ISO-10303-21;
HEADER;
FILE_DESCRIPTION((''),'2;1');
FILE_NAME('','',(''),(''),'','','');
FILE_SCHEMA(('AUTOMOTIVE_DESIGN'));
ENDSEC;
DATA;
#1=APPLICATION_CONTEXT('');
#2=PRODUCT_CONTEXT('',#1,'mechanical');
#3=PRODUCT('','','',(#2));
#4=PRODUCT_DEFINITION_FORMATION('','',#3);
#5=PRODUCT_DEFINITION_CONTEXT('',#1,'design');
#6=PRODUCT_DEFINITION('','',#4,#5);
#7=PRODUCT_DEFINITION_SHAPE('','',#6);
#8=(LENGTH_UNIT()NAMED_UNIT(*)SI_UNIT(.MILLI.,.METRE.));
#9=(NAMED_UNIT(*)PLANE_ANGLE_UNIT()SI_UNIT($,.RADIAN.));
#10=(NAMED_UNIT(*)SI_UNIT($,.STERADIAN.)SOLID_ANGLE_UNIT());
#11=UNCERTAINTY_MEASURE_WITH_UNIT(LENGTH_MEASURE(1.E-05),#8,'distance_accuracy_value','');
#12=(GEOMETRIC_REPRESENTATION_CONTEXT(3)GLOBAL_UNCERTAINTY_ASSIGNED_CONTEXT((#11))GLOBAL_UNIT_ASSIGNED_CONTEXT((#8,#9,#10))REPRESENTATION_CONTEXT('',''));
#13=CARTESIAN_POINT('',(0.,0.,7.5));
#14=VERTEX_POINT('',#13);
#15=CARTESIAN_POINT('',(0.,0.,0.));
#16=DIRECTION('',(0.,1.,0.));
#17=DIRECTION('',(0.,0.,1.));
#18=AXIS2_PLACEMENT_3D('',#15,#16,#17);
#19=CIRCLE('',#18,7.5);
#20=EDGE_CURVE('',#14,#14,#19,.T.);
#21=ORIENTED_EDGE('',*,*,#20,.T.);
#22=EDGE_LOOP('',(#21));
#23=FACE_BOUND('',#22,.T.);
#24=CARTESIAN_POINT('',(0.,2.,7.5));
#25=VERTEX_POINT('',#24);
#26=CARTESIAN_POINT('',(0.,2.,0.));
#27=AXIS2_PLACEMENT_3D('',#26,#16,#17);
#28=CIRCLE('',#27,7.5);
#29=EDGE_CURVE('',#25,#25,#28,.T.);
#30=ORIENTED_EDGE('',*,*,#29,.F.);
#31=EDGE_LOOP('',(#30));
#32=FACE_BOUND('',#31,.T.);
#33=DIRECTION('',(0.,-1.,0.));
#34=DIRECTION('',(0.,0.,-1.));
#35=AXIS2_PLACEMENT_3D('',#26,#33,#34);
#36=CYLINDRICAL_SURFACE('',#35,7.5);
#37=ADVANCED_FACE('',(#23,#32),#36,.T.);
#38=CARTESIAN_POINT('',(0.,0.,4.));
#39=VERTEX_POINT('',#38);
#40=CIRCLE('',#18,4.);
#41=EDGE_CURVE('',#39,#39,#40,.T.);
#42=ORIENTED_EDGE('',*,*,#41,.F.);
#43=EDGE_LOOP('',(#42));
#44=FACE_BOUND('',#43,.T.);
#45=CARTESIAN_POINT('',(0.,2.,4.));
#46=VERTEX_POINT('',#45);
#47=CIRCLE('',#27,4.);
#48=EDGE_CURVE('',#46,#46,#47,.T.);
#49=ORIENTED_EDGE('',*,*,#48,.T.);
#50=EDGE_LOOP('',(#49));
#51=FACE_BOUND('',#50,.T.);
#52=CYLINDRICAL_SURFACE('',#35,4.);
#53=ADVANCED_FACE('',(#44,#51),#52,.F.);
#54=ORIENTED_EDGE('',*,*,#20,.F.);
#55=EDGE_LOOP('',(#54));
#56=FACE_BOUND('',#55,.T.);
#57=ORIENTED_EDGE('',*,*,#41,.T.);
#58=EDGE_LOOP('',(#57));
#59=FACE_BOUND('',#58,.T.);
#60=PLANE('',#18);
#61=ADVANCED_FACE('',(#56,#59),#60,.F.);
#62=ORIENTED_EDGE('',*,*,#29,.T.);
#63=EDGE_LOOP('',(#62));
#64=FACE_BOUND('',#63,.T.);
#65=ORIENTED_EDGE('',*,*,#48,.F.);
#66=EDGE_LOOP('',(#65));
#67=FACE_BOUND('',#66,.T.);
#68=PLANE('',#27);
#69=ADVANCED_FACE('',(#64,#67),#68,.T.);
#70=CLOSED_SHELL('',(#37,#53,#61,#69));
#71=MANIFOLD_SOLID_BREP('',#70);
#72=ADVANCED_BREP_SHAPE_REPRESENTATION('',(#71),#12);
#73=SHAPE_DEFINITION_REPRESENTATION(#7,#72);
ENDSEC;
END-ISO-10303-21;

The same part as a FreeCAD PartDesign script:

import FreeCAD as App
import Part
import Sketcher

doc = App.newDocument("Part")
body = doc.addObject("PartDesign::Body", "Body")

# Sketch on XZ plane
sketch1 = doc.addObject("Sketcher::SketchObject", "Sketch")
body.addObject(sketch1)
sketch1.AttachmentSupport = (doc.XZ_Plane, [""])
sketch1.MapMode = "FlatFace"
sketch1.addGeometry(Part.Circle(App.Vector(0, 0, 0), App.Vector(0, 0, 1), 8), False)
sketch1.addConstraint([
    Sketcher.Constraint("Coincident", 0, 3, -1, 1),
    Sketcher.Constraint("Diameter", 0, 15.0),
])
pad1 = doc.addObject("PartDesign::Pad", "Pad")
body.addObject(pad1)
pad1.Profile = sketch1
pad1.Length = 2
pad1.Reversed = True

# Sketch on XZ plane
sketch2 = doc.addObject("Sketcher::SketchObject", "Sketch001")
body.addObject(sketch2)
sketch2.AttachmentSupport = (doc.XZ_Plane, [""])
sketch2.MapMode = "FlatFace"
sketch2.addGeometry(Part.Circle(App.Vector(0, 0, 0), App.Vector(0, 0, 1), 4), False)
sketch2.addConstraint([
    Sketcher.Constraint("Coincident", 0, 3, -1, 1),
    Sketcher.Constraint("Diameter", 0, 8.0),
])
pocket1 = doc.addObject("PartDesign::Pocket", "Pocket")
body.addObject(pocket1)
pocket1.Profile = sketch2
pocket1.Type = "ThroughAll"

doc.recompute()
